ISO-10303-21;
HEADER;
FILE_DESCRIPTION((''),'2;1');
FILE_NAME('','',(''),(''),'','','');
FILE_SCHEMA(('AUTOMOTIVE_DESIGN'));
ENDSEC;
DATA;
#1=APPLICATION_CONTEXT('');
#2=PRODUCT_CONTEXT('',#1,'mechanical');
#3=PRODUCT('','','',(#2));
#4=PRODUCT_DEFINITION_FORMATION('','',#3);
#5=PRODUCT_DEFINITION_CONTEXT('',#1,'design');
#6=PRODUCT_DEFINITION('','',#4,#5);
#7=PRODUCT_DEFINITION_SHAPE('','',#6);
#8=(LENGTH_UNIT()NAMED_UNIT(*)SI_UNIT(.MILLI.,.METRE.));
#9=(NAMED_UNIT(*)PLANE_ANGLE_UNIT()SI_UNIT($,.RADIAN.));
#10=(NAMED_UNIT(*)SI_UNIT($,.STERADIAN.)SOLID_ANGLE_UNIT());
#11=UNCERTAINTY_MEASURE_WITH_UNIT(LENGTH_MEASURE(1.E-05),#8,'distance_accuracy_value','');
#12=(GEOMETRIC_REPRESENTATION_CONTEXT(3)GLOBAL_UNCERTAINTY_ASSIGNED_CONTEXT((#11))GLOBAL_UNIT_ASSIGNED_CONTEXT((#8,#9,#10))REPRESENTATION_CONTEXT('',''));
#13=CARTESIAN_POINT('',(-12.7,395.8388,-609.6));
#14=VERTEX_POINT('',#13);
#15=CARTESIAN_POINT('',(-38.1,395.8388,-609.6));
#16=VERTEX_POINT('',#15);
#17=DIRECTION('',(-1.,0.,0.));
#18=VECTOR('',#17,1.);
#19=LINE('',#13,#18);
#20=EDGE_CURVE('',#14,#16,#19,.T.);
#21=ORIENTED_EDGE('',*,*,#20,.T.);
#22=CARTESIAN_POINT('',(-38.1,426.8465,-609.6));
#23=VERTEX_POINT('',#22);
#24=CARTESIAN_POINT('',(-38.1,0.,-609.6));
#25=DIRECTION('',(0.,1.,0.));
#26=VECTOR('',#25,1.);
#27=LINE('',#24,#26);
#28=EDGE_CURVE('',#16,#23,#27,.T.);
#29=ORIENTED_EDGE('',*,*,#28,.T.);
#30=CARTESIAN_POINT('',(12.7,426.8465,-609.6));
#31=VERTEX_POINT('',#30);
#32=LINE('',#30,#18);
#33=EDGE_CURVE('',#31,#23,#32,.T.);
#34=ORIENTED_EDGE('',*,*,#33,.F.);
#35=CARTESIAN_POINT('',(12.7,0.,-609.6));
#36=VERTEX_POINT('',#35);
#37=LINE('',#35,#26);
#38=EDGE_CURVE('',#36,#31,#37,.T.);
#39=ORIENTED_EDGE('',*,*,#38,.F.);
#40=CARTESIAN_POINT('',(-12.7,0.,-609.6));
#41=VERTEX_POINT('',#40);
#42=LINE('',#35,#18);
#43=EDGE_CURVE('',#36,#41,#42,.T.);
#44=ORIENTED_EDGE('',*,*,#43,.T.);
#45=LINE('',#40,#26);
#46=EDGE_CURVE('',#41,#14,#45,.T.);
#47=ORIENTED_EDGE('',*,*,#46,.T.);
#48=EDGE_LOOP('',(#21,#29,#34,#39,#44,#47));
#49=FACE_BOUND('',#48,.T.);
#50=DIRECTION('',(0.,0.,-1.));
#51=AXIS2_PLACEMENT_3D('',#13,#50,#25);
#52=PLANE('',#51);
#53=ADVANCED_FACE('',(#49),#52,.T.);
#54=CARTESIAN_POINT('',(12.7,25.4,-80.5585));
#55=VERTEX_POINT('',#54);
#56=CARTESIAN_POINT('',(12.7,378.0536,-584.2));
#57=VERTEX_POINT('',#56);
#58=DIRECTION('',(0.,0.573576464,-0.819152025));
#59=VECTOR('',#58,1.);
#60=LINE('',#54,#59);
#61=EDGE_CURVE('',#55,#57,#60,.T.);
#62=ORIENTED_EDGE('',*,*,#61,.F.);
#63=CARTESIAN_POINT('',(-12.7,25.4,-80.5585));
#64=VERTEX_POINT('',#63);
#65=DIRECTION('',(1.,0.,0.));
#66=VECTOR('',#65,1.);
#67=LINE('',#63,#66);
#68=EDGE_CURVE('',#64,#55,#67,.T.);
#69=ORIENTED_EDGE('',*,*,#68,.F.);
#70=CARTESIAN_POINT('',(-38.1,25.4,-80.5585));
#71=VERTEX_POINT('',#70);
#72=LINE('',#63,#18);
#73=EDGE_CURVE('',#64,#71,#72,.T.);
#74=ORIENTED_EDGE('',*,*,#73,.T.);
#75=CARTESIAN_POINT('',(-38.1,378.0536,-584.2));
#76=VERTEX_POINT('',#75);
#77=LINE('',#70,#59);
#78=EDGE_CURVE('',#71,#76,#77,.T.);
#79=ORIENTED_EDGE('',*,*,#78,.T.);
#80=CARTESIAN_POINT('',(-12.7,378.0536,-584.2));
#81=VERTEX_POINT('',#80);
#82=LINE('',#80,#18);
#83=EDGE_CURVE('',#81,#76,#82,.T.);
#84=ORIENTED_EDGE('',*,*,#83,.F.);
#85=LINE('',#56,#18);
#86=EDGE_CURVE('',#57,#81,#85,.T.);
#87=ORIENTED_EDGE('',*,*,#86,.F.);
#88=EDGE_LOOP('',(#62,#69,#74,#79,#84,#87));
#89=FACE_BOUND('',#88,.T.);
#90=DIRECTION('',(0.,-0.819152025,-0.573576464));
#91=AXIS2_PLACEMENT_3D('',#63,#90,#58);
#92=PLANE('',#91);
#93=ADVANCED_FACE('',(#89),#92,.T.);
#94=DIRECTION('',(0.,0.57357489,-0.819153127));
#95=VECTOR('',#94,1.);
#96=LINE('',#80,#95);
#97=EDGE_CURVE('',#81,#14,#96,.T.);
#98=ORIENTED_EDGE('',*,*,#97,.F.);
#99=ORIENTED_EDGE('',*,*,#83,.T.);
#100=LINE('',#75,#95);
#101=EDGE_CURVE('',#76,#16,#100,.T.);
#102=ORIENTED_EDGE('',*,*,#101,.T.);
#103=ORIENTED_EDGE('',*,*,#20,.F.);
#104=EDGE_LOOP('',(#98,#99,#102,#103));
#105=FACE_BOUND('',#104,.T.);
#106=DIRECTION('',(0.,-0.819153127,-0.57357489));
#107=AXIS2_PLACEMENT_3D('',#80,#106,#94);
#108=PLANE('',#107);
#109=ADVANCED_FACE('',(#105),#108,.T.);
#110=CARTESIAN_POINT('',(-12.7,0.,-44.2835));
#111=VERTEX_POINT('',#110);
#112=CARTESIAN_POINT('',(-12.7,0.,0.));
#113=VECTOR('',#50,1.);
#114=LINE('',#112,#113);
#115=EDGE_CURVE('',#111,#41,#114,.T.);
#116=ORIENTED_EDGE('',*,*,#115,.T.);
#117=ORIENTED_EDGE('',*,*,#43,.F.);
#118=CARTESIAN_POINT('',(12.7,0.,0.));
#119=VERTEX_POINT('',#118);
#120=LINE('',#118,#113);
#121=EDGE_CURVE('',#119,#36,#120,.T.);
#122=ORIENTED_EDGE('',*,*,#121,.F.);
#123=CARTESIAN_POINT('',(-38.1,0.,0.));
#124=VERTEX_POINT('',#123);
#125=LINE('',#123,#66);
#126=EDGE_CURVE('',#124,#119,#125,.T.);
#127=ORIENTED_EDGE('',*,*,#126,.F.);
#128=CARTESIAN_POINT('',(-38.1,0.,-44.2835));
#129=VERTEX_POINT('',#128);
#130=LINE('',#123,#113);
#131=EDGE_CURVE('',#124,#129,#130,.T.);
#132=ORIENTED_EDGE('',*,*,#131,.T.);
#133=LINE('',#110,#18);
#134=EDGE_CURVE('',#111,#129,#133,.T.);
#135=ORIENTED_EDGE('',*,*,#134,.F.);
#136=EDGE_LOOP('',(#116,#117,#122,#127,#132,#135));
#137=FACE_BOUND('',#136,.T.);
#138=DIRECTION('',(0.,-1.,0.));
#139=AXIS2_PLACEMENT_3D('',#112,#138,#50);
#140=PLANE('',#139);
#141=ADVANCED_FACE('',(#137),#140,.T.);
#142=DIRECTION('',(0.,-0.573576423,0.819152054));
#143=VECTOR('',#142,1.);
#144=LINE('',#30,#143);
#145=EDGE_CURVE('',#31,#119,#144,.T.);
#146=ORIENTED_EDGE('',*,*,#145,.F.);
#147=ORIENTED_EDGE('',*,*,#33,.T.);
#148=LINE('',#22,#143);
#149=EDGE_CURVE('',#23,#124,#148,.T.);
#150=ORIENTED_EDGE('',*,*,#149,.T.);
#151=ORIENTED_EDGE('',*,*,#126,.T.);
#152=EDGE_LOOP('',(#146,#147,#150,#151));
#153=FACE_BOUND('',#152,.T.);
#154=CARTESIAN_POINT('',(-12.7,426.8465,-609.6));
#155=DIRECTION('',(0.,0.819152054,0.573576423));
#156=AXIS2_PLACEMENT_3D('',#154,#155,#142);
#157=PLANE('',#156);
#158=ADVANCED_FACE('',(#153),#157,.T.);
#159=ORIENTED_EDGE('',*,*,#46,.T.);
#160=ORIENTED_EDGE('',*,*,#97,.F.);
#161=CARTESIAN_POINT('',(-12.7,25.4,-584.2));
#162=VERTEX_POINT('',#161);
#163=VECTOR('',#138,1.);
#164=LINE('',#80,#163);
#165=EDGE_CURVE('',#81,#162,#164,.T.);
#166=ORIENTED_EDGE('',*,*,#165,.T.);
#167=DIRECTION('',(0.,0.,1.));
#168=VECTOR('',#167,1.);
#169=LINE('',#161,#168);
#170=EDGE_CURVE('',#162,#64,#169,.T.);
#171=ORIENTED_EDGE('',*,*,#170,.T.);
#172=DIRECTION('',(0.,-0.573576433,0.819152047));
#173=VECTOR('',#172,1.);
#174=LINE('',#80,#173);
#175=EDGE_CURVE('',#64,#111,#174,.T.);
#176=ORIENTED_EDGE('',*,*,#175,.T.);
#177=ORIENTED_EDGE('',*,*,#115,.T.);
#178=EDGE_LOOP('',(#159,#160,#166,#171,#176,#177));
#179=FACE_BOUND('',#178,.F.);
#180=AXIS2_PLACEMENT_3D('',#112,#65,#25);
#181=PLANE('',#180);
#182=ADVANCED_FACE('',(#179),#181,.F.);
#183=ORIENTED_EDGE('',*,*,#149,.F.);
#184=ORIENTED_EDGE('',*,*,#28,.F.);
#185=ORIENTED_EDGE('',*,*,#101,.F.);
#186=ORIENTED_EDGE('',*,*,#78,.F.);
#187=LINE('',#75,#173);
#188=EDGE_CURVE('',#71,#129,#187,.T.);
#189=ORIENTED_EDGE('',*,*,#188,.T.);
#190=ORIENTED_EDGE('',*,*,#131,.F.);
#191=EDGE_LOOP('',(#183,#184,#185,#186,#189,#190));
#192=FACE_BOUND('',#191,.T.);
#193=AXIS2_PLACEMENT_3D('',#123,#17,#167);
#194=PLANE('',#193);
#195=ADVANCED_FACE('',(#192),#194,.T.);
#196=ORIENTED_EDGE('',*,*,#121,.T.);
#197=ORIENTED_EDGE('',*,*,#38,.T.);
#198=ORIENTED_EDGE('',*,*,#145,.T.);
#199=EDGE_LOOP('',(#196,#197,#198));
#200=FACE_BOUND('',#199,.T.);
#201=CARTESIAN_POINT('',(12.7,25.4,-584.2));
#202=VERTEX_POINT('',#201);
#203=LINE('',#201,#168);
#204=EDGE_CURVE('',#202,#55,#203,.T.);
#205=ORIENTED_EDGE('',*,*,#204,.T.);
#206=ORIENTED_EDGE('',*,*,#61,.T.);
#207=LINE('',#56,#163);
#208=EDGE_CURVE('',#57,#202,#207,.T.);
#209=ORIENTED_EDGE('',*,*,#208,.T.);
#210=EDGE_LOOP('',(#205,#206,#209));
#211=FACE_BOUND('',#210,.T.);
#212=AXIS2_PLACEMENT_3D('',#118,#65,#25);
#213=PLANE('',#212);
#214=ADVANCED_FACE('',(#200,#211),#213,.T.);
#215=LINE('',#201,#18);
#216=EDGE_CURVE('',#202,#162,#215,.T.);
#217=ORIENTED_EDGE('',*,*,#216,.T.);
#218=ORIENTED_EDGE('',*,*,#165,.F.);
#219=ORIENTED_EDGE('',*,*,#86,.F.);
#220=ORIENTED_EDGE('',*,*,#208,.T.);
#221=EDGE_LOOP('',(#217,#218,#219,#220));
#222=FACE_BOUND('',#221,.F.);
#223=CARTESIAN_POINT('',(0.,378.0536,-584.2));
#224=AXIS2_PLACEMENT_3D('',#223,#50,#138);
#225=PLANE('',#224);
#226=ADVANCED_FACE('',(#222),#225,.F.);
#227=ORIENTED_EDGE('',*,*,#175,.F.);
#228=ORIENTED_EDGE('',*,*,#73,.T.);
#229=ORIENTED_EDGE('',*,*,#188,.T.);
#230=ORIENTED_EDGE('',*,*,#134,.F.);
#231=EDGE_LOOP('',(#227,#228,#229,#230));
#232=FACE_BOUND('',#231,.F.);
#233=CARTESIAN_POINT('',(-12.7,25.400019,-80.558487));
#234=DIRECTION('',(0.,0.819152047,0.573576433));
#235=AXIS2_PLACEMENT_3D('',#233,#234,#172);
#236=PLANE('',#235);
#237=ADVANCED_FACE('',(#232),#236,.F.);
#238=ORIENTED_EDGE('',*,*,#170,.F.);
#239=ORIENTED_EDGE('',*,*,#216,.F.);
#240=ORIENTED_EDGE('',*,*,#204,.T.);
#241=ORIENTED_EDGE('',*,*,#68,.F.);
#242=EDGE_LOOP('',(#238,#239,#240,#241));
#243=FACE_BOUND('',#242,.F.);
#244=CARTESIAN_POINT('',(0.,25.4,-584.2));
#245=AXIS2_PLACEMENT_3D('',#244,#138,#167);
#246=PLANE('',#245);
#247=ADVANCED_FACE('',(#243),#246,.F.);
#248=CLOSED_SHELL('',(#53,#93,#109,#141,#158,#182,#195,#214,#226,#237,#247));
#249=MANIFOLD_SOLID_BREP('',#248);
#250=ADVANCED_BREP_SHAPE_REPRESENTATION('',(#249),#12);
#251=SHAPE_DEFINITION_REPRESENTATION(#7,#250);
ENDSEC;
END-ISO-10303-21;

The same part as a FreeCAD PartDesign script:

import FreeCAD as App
import Part
import Sketcher
Q = App.Units.Quantity


def add_polygon(sketch, points):
    """Adds a closed chain of lines whose ends are joined by coincident constraints."""
    first, n = sketch.GeometryCount, len(points)
    for a, b in zip(points, points[1:] + points[:1]):
        sketch.addGeometry(Part.LineSegment(App.Vector(*a, 0), App.Vector(*b, 0)), False)
    for i in range(n):
        sketch.addConstraint(Sketcher.Constraint("Coincident", first + i, 2, first + (i + 1) % n, 1))

doc = App.newDocument("Part")
body = doc.addObject("PartDesign::Body", "Body")

# Sketch on YZ plane
sketch1 = doc.addObject("Sketcher::SketchObject", "Sketch")
body.addObject(sketch1)
sketch1.AttachmentSupport = (doc.YZ_Plane, [""])
sketch1.MapMode = "FlatFace"
add_polygon(sketch1, [(427, -610), (0, 0), (0, -610)])  # lines 0-2
add_polygon(sketch1, [(25, -584), (25, -81), (378, -584)])  # lines 3-5
sketch1.addConstraint([
    Sketcher.Constraint("Vertical", 1),
    Sketcher.Constraint("Horizontal", 2),
    Sketcher.Constraint("Vertical", 3),
    Sketcher.Constraint("Horizontal", 5),
    Sketcher.Constraint("Coincident", 0, 2, -1, 1),
    Sketcher.Constraint("Parallel", 0, 4),
    Sketcher.Constraint("DistanceY", 1, 2, 1, 1, Q("24 in")),
    Sketcher.Constraint("DistanceX", -1, 1, 3, 2, Q("1 in")),
    Sketcher.Constraint("DistanceY", 2, 2, 4, 2, Q("1 in")),
    Sketcher.Constraint("Angle", 0, Q("125 deg")),
    Sketcher.Constraint("DistanceX", 5, 2, 5, 1, Q("13.884 in")),
])
pad1 = doc.addObject("PartDesign::Pad", "Pad")
body.addObject(pad1)
pad1.Profile = sketch1
pad1.Length = Q("1 in")
pad1.Midplane = True

# Sketch on YZ plane
sketch2 = doc.addObject("Sketcher::SketchObject", "Sketch001")
body.addObject(sketch2)
sketch2.AttachmentSupport = (doc.YZ_Plane, [""])
sketch2.MapMode = "FlatFace"
sketch2.AttachmentOffset = App.Placement(App.Vector(0, 0, -0.5 * 25.4), App.Rotation())
add_polygon(sketch2, [(0, 0), (427, -610), (396, -610), (378, -584), (25, -81), (0, -44)])  # lines 0-5
sketch2.addConstraint([
    Sketcher.Constraint("Horizontal", 1),
    Sketcher.Constraint("Vertical", 5),
    Sketcher.Constraint("Coincident", 5, 2, -1, 1),
    Sketcher.Constraint("Parallel", 0, 2),
    Sketcher.Constraint("Parallel", 2, 3),
    Sketcher.Constraint("Parallel", 3, 4),
    Sketcher.Constraint("DistanceY", 0, 2, -1, 1, Q("24 in")),
    Sketcher.Constraint("DistanceY", 2, 2, -1, 1, Q("23 in")),
    Sketcher.Constraint("DistanceX", -1, 1, 3, 2, Q("1 in")),
    Sketcher.Constraint("Angle", 0, Q("-55 deg")),
    Sketcher.Constraint("DistanceX", -1, 1, 2, 2, Q("14.884 in")),
])
pad2 = doc.addObject("PartDesign::Pad", "Pad001")
body.addObject(pad2)
pad2.Profile = sketch2
pad2.Length = Q("1 in")
pad2.Reversed = True

doc.recompute()
